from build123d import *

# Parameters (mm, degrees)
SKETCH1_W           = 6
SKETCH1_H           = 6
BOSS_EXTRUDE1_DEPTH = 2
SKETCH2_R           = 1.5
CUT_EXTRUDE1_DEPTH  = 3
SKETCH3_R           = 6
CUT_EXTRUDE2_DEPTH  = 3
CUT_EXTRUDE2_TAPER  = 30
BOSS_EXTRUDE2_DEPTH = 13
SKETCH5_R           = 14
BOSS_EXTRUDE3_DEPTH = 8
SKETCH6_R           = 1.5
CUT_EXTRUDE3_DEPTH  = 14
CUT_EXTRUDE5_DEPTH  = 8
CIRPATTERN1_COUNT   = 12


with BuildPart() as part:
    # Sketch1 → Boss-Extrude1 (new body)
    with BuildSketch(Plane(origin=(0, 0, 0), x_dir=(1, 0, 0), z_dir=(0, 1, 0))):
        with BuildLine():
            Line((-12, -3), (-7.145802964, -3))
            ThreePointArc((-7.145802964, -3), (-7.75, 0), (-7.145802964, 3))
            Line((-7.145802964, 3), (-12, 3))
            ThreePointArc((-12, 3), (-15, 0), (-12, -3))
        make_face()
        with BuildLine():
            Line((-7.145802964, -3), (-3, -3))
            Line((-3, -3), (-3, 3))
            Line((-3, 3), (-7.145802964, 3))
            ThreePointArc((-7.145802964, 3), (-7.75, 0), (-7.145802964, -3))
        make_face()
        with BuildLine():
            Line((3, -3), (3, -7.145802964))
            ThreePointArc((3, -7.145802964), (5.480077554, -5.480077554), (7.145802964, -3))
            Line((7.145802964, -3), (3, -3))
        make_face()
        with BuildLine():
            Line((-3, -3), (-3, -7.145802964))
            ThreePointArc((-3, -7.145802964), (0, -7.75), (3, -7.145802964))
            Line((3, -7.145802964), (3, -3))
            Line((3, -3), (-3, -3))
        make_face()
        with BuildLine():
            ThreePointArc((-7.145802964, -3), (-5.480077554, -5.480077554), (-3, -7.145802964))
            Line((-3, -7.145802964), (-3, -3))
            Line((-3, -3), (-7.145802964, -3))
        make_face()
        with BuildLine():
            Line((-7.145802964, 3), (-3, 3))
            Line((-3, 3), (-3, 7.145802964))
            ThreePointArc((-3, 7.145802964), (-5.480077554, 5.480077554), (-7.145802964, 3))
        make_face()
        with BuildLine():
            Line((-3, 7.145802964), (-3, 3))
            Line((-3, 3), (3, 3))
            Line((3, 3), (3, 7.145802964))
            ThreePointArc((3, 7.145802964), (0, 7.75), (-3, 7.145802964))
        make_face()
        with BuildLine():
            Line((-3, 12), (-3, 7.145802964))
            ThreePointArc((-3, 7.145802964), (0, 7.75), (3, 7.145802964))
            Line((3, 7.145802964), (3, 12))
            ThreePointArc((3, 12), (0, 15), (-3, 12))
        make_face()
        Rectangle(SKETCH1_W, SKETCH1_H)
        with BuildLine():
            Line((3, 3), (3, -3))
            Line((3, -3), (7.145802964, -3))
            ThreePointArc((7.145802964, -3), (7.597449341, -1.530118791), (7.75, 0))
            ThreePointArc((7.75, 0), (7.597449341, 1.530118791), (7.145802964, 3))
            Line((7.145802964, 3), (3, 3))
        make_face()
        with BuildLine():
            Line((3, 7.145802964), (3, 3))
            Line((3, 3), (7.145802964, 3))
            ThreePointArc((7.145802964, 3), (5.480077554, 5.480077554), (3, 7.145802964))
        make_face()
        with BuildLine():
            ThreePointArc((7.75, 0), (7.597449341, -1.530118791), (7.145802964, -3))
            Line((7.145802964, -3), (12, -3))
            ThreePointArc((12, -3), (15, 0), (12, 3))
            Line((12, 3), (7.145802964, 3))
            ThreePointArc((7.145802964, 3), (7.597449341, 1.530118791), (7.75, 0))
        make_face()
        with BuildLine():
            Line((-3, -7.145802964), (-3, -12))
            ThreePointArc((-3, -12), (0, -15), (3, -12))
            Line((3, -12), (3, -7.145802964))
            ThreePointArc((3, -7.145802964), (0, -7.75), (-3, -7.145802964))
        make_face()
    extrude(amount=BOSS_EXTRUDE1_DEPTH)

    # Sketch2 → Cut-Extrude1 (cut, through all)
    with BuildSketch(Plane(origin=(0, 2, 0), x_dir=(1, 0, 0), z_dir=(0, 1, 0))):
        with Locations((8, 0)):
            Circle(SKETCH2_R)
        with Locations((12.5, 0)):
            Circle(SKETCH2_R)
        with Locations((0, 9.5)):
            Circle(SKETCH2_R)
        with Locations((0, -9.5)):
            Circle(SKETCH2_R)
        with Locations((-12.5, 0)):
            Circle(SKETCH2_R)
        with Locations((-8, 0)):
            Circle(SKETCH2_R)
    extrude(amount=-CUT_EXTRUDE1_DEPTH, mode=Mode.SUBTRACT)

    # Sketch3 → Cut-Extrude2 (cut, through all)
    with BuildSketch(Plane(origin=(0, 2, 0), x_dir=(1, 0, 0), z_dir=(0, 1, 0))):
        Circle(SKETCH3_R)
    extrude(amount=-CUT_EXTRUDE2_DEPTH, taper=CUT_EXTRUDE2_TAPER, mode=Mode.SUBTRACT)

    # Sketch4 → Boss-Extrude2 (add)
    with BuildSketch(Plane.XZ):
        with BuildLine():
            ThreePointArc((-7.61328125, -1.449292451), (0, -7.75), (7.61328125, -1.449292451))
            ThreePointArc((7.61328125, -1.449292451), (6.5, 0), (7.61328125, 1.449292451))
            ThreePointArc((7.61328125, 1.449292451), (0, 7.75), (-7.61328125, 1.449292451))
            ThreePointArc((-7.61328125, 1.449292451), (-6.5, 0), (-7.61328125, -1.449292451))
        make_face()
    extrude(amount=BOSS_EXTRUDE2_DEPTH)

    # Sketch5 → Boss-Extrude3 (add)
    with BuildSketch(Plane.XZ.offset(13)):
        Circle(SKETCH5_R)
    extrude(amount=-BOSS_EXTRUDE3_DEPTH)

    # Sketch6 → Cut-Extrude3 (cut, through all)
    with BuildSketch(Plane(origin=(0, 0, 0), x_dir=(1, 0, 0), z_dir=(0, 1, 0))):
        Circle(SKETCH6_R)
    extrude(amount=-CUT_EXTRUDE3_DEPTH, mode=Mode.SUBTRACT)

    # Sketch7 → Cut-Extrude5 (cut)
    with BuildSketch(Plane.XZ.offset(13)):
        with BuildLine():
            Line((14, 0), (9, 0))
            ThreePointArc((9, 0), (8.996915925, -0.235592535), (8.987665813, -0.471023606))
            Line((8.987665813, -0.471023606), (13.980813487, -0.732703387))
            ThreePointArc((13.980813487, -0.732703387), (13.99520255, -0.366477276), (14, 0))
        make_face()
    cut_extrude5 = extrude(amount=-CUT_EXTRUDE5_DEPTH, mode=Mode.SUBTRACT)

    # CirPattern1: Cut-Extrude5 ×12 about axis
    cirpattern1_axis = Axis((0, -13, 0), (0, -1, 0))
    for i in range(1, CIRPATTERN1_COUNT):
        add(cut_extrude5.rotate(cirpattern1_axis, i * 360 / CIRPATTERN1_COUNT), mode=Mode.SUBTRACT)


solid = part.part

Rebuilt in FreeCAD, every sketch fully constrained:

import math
import FreeCAD as App
import Part
import Sketcher
Q = App.Units.Quantity

doc = App.newDocument("Part")
body = doc.addObject("PartDesign::Body", "Body")

# Sketch on XZ plane
sketch1 = body.newObject("Sketcher::SketchObject", "Sketch")
sketch1.AttachmentSupport = (doc.getObject("XZ_Plane"), [""])
sketch1.MapMode = "FlatFace"
sketch1.addGeometry([
    Part.LineSegment(App.Vector(-12, 3, 0), App.Vector(-7.1, 3, 0)),  # 0
    Part.ArcOfCircle(Part.Circle(App.Vector(0, 0, 0), App.Vector(0, 0, 1), 7.8), math.radians(113), math.radians(157)),  # 1
    Part.LineSegment(App.Vector(-3, 7.1, 0), App.Vector(-3, 12, 0)),  # 2
    Part.ArcOfCircle(Part.Circle(App.Vector(0, 12, 0), App.Vector(0, 0, 1), 3), math.radians(0), math.radians(180)),  # 3
    Part.LineSegment(App.Vector(3, 12, 0), App.Vector(3, 7.1, 0)),  # 4
    Part.ArcOfCircle(Part.Circle(App.Vector(0, 0, 0), App.Vector(0, 0, 1), 7.8), math.radians(23), math.radians(67)),  # 5
    Part.LineSegment(App.Vector(7.1, 3, 0), App.Vector(12, 3, 0)),  # 6
    Part.ArcOfCircle(Part.Circle(App.Vector(12, 0, 0), App.Vector(0, 0, 1), 3), math.radians(-90), math.radians(90)),  # 7
    Part.LineSegment(App.Vector(12, -3, 0), App.Vector(7.1, -3, 0)),  # 8
    Part.ArcOfCircle(Part.Circle(App.Vector(0, 0, 0), App.Vector(0, 0, 1), 7.8), math.radians(-67), math.radians(-23)),  # 9
    Part.LineSegment(App.Vector(3, -7.1, 0), App.Vector(3, -12, 0)),  # 10
    Part.ArcOfCircle(Part.Circle(App.Vector(0, -12, 0), App.Vector(0, 0, 1), 3), math.radians(180), math.radians(360)),  # 11
    Part.LineSegment(App.Vector(-3, -12, 0), App.Vector(-3, -7.1, 0)),  # 12
    Part.ArcOfCircle(Part.Circle(App.Vector(0, 0, 0), App.Vector(0, 0, 1), 7.8), math.radians(-157), math.radians(-113)),  # 13
    Part.LineSegment(App.Vector(-7.1, -3, 0), App.Vector(-12, -3, 0)),  # 14
    Part.ArcOfCircle(Part.Circle(App.Vector(-12, 0, 0), App.Vector(0, 0, 1), 3), math.radians(90), math.radians(270)),  # 15
], False)
sketch1.addConstraint([
    Sketcher.Constraint("Coincident", 0, 2, 1, 2),
    Sketcher.Constraint("Coincident", 1, 1, 2, 1),
    Sketcher.Constraint("Tangent", 2, 2, 3, 2),
    Sketcher.Constraint("Tangent", 3, 1, 4, 1),
    Sketcher.Constraint("Coincident", 4, 2, 5, 2),
    Sketcher.Constraint("Coincident", 5, 1, 6, 1),
    Sketcher.Constraint("Tangent", 6, 2, 7, 2),
    Sketcher.Constraint("Tangent", 7, 1, 8, 1),
    Sketcher.Constraint("Coincident", 8, 2, 9, 2),
    Sketcher.Constraint("Coincident", 9, 1, 10, 1),
    Sketcher.Constraint("Tangent", 10, 2, 11, 2),
    Sketcher.Constraint("Tangent", 11, 1, 12, 1),
    Sketcher.Constraint("Coincident", 12, 2, 13, 2),
    Sketcher.Constraint("Coincident", 13, 1, 14, 1),
    Sketcher.Constraint("Tangent", 14, 2, 15, 2),
    Sketcher.Constraint("Tangent", 15, 1, 0, 1),
    Sketcher.Constraint("Horizontal", 0),
    Sketcher.Constraint("Vertical", 2),
    Sketcher.Constraint("Vertical", 4),
    Sketcher.Constraint("Horizontal", 6),
    Sketcher.Constraint("Horizontal", 8),
    Sketcher.Constraint("Vertical", 10),
    Sketcher.Constraint("Vertical", 12),
    Sketcher.Constraint("Horizontal", 14),
    Sketcher.Constraint("Coincident", 1, 3, -1, 1),
    Sketcher.Constraint("Coincident", 5, 3, -1, 1),
    Sketcher.Constraint("Coincident", 9, 3, -1, 1),
    Sketcher.Constraint("Coincident", 13, 3, -1, 1),
    Sketcher.Constraint("Equal", 1, 5),
    Sketcher.Constraint("Equal", 3, 7),
    Sketcher.Constraint("Equal", 5, 9),
    Sketcher.Constraint("Equal", 7, 11),
    Sketcher.Constraint("Equal", 9, 13),
    Sketcher.Constraint("Equal", 11, 15),
    Sketcher.Constraint("Symmetric", 3, 3, 11, 3, -1, 1),
    Sketcher.Constraint("Symmetric", 7, 3, 15, 3, -1, 1),
    Sketcher.Constraint("PointOnObject", 3, 3, -2),
    Sketcher.Constraint("PointOnObject", 7, 3, -1),
    Sketcher.Constraint("Equal", 14, 2),
    Sketcher.Constraint("Radius", 3, 3.0),
    Sketcher.Constraint("Radius", 1, 7.75),
    Sketcher.Constraint("DistanceY", -1, 1, 3, 3, 12.0),
])
pad1 = body.newObject("PartDesign::Pad", "Pad")
pad1.Profile = sketch1
pad1.Length = 2
pad1.Reversed = True

# Sketch on XZ plane
sketch2 = body.newObject("Sketcher::SketchObject", "Sketch001")
sketch2.AttachmentSupport = (doc.getObject("XZ_Plane"), [""])
sketch2.MapMode = "FlatFace"
sketch2.AttachmentOffset = App.Placement(App.Vector(0, 0, -2), App.Rotation())
sketch2.addGeometry([
    Part.Circle(App.Vector(8, 0, 0), App.Vector(0, 0, 1), 1.5),  # 0
    Part.Circle(App.Vector(12.5, 0, 0), App.Vector(0, 0, 1), 1.5),  # 1
    Part.Circle(App.Vector(0, -9.5, 0), App.Vector(0, 0, 1), 1.5),  # 2
    Part.Circle(App.Vector(0, 9.5, 0), App.Vector(0, 0, 1), 1.5),  # 3
    Part.Circle(App.Vector(-12.5, 0, 0), App.Vector(0, 0, 1), 1.5),  # 4
    Part.Circle(App.Vector(-8, 0, 0), App.Vector(0, 0, 1), 1.5),  # 5
], False)
sketch2.addConstraint([
    Sketcher.Constraint("Equal", 0, 1),
    Sketcher.Constraint("Equal", 1, 2),
    Sketcher.Constraint("Equal", 2, 3),
    Sketcher.Constraint("Equal", 3, 4),
    Sketcher.Constraint("Equal", 4, 5),
    Sketcher.Constraint("Symmetric", 2, 3, 3, 3, -1, 1),
    Sketcher.Constraint("Symmetric", 1, 3, 4, 3, -1, 1),
    Sketcher.Constraint("Symmetric", 0, 3, 5, 3, -1, 1),
    Sketcher.Constraint("PointOnObject", 0, 3, -1),
    Sketcher.Constraint("PointOnObject", 1, 3, -1),
    Sketcher.Constraint("PointOnObject", 2, 3, -2),
    Sketcher.Constraint("Diameter", 0, 3.0),
    Sketcher.Constraint("DistanceX", -1, 1, 0, 3, 8.0),
    Sketcher.Constraint("DistanceY", 2, 3, 3, 3, 19.0),
    Sketcher.Constraint("DistanceX", 4, 3, 1, 3, 25.0),
])
pocket1 = body.newObject("PartDesign::Pocket", "Pocket")
pocket1.Profile = sketch2
pocket1.Type = "ThroughAll"
pocket1.Reversed = True

# Sketch on XZ plane
sketch3 = body.newObject("Sketcher::SketchObject", "Sketch002")
sketch3.AttachmentSupport = (doc.getObject("XZ_Plane"), [""])
sketch3.MapMode = "FlatFace"
sketch3.AttachmentOffset = App.Placement(App.Vector(0, 0, -2), App.Rotation())
sketch3.addGeometry(Part.Circle(App.Vector(0, 0, 0), App.Vector(0, 0, 1), 6), False)
sketch3.addConstraint([
    Sketcher.Constraint("Coincident", 0, 3, -1, 1),
    Sketcher.Constraint("Diameter", 0, 12.0),
])
pocket2 = body.newObject("PartDesign::Pocket", "Pocket001")
pocket2.Profile = sketch3
pocket2.Type = "ThroughAll"
pocket2.Reversed = True
pocket2.TaperAngle = -30

# Sketch on XZ plane
sketch4 = body.newObject("Sketcher::SketchObject", "Sketch003")
sketch4.AttachmentSupport = (doc.getObject("XZ_Plane"), [""])
sketch4.MapMode = "FlatFace"
sketch4.addGeometry([
    Part.ArcOfCircle(Part.Circle(App.Vector(0, 0, 0), App.Vector(0, 0, 1), 7.8), math.radians(-169), math.radians(-11)),
    Part.ArcOfCircle(Part.Circle(App.Vector(8, 0, 0), App.Vector(0, 0, 1), 1.5), math.radians(105), math.radians(255)),
    Part.ArcOfCircle(Part.Circle(App.Vector(0, 0, 0), App.Vector(0, 0, 1), 7.8), math.radians(11), math.radians(169)),
    Part.ArcOfCircle(Part.Circle(App.Vector(-8, 0, 0), App.Vector(0, 0, 1), 1.5), math.radians(-75), math.radians(75)),
], False)
sketch4.addConstraint([
    Sketcher.Constraint("Coincident", 0, 2, 1, 2),
    Sketcher.Constraint("Coincident", 1, 1, 2, 1),
    Sketcher.Constraint("Coincident", 2, 2, 3, 2),
    Sketcher.Constraint("Coincident", 3, 1, 0, 1),
    Sketcher.Constraint("Coincident", 0, 3, -1, 1),
    Sketcher.Constraint("Coincident", 2, 3, -1, 1),
    Sketcher.Constraint("Equal", 0, 2),
    Sketcher.Constraint("Equal", 1, 3),
    Sketcher.Constraint("Symmetric", 1, 3, 3, 3, -1, 1),
    Sketcher.Constraint("PointOnObject", 1, 3, -1),
    Sketcher.Constraint("Radius", 1, 1.5),
    Sketcher.Constraint("Radius", 0, 7.75),
    Sketcher.Constraint("DistanceX", -1, 1, 1, 3, 8.0),
])
pad2 = body.newObject("PartDesign::Pad", "Pad001")
pad2.Profile = sketch4
pad2.Length = 13

# Sketch on XZ plane
sketch5 = body.newObject("Sketcher::SketchObject", "Sketch004")
sketch5.AttachmentSupport = (doc.getObject("XZ_Plane"), [""])
sketch5.MapMode = "FlatFace"
sketch5.AttachmentOffset = App.Placement(App.Vector(0, 0, 13), App.Rotation())
sketch5.addGeometry(Part.Circle(App.Vector(0, 0, 0), App.Vector(0, 0, 1), 14), False)
sketch5.addConstraint([
    Sketcher.Constraint("Coincident", 0, 3, -1, 1),
    Sketcher.Constraint("Diameter", 0, 28.0),
])
pad3 = body.newObject("PartDesign::Pad", "Pad002")
pad3.Profile = sketch5
pad3.Length = 8
pad3.Reversed = True

# Sketch on XZ plane
sketch6 = body.newObject("Sketcher::SketchObject", "Sketch005")
sketch6.AttachmentSupport = (doc.getObject("XZ_Plane"), [""])
sketch6.MapMode = "FlatFace"
sketch6.addGeometry(Part.Circle(App.Vector(0, 0, 0), App.Vector(0, 0, 1), 1.5), False)
sketch6.addConstraint([
    Sketcher.Constraint("Coincident", 0, 3, -1, 1),
    Sketcher.Constraint("Diameter", 0, 3.0),
])
pocket3 = body.newObject("PartDesign::Pocket", "Pocket002")
pocket3.Profile = sketch6
pocket3.Type = "ThroughAll"
pocket3.Reversed = True

# Sketch on XZ plane
sketch7 = body.newObject("Sketcher::SketchObject", "Sketch006")
sketch7.AttachmentSupport = (doc.getObject("XZ_Plane"), [""])
sketch7.MapMode = "FlatFace"
sketch7.AttachmentOffset = App.Placement(App.Vector(0, 0, 13), App.Rotation())
sketch7.addGeometry([
    Part.LineSegment(App.Vector(14, 0, 0), App.Vector(9, 0, 0)),
    Part.ArcOfCircle(Part.Circle(App.Vector(0, 0, 0), App.Vector(0, 0, 1), 9), math.radians(-3), math.radians(0)),
    Part.LineSegment(App.Vector(8.99, -0.47, 0), App.Vector(13.98, -0.73, 0)),
    Part.ArcOfCircle(Part.Circle(App.Vector(0, 0, 0), App.Vector(0, 0, 1), 14), math.radians(-3), math.radians(0)),
], False)
sketch7.addConstraint([
    Sketcher.Constraint("Coincident", 0, 2, 1, 2),
    Sketcher.Constraint("Coincident", 1, 1, 2, 1),
    Sketcher.Constraint("Coincident", 2, 2, 3, 1),
    Sketcher.Constraint("Coincident", 3, 2, 0, 1),
    Sketcher.Constraint("Horizontal", 0),
    Sketcher.Constraint("Coincident", 1, 3, -1, 1),
    Sketcher.Constraint("Coincident", 3, 3, -1, 1),
    Sketcher.Constraint("PointOnObject", 0, 2, -1),
    Sketcher.Constraint("Radius", 1, 9.0),
    Sketcher.Constraint("Radius", 3, 14.0),
    Sketcher.Constraint("Angle", 2, Q("-3 deg")),
    Sketcher.Constraint("DistanceX", -1, 1, 1, 1, 8.987666),
])
pocket4 = body.newObject("PartDesign::Pocket", "Pocket003")
pocket4.Profile = sketch7
pocket4.Length = 8
doc.recompute()

polarpattern = body.newObject("PartDesign::PolarPattern", "PolarPattern")
polarpattern.Originals = [pocket4]
polarpattern.Axis = (doc.getObject("Y_Axis"), [""])
polarpattern.Angle = 360
polarpattern.Occurrences = 12
body.Tip = polarpattern

doc.recompute()
